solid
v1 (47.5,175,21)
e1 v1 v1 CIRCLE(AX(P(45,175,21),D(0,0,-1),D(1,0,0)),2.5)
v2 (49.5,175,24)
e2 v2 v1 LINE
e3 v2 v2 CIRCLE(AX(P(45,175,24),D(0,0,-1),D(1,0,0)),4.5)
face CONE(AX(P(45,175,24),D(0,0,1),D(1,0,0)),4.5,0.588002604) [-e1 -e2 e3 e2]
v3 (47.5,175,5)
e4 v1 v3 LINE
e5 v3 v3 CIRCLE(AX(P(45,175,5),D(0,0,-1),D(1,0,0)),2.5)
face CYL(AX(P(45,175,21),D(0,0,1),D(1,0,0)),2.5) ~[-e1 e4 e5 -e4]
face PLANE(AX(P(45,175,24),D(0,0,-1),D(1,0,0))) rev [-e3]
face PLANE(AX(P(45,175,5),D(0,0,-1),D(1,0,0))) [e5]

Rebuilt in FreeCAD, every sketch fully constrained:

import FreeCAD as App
import Part
import Sketcher

doc = App.newDocument("Part")
body = doc.addObject("PartDesign::Body", "Body")

# Sketch on XZ plane
sketch1 = body.newObject("Sketcher::SketchObject", "Sketch")
sketch1.AttachmentSupport = (doc.getObject("XZ_Plane"), [""])
sketch1.MapMode = "FlatFace"
sketch1.addGeometry(Part.LineSegment(App.Vector(0, -3, 0), App.Vector(4.5, -3, 0)), False)
sketch1.addGeometry(Part.LineSegment(App.Vector(4.5, -3, 0), App.Vector(2.5, 0, 0)), False)
sketch1.addGeometry(Part.LineSegment(App.Vector(2.5, 0, 0), App.Vector(0, 0, 0)), False)
sketch1.addGeometry(Part.LineSegment(App.Vector(0, 0, 0), App.Vector(0, -3, 0)), False)
sketch1.addConstraint(Sketcher.Constraint("Coincident", 0, 2, 1, 1))
sketch1.addConstraint(Sketcher.Constraint("Coincident", 1, 2, 2, 1))
sketch1.addConstraint(Sketcher.Constraint("Coincident", 2, 2, 3, 1))
sketch1.addConstraint(Sketcher.Constraint("Coincident", 3, 2, 0, 1))
sketch1.addConstraint(Sketcher.Constraint("Horizontal", 0))
sketch1.addConstraint(Sketcher.Constraint("Horizontal", 2))
sketch1.addConstraint(Sketcher.Constraint("Vertical", 3))
sketch1.addConstraint(Sketcher.Constraint("Coincident", 2, 2, -1, 1))
sketch1.addConstraint(Sketcher.Constraint("DistanceY", 3, 2, 3, 1, 3.0))
sketch1.addConstraint(Sketcher.Constraint("DistanceX", 0, 1, 0, 2, 4.5))
sketch1.addConstraint(Sketcher.Constraint("DistanceX", 2, 2, 2, 1, 2.5))
revolution = body.newObject("PartDesign::Revolution", "Revolution")
revolution.Profile = sketch1
revolution.ReferenceAxis = (sketch1, ["V_Axis"])
revolution.Angle = 360
body2 = doc.addObject("PartDesign::Body", "Body001")

# Sketch on XY plane
sketch2 = body2.newObject("Sketcher::SketchObject", "Sketch001")
sketch2.AttachmentSupport = (doc.getObject("XY_Plane001"), [""])
sketch2.MapMode = "FlatFace"
sketch2.addGeometry(Part.Circle(App.Vector(0, 0, 0), App.Vector(0, 0, 1), 2.5), False)
sketch2.addConstraint(Sketcher.Constraint("Coincident", 0, 3, -1, 1))
sketch2.addConstraint(Sketcher.Constraint("Diameter", 0, 5.0))
pad1 = body2.newObject("PartDesign::Pad", "Pad")
pad1.Profile = sketch2
pad1.Length = 16
doc.recompute()

boolean = body2.newObject("PartDesign::Boolean", "Boolean")
boolean.Type = "Fuse"
boolean.addObjects([body])
body3 = doc.addObject("PartDesign::Body", "Body002")
doc.recompute()

body2.Placement = App.Placement(App.Vector(45, 15, 21), App.Rotation(App.Vector(0, 1, 0), 180))
boolean2 = body3.newObject("PartDesign::Boolean", "Boolean001")
boolean2.Type = "Fuse"
boolean2.addObjects([body2])
body4 = doc.addObject("PartDesign::Body", "Body003")
doc.recompute()

body3.Placement = App.Placement(App.Vector(90, 190, 0), App.Rotation(App.Vector(0, 0, 1), 180))
boolean3 = body4.newObject("PartDesign::Boolean", "Boolean002")
boolean3.Type = "Fuse"
boolean3.addObjects([body3])

doc.recompute()
